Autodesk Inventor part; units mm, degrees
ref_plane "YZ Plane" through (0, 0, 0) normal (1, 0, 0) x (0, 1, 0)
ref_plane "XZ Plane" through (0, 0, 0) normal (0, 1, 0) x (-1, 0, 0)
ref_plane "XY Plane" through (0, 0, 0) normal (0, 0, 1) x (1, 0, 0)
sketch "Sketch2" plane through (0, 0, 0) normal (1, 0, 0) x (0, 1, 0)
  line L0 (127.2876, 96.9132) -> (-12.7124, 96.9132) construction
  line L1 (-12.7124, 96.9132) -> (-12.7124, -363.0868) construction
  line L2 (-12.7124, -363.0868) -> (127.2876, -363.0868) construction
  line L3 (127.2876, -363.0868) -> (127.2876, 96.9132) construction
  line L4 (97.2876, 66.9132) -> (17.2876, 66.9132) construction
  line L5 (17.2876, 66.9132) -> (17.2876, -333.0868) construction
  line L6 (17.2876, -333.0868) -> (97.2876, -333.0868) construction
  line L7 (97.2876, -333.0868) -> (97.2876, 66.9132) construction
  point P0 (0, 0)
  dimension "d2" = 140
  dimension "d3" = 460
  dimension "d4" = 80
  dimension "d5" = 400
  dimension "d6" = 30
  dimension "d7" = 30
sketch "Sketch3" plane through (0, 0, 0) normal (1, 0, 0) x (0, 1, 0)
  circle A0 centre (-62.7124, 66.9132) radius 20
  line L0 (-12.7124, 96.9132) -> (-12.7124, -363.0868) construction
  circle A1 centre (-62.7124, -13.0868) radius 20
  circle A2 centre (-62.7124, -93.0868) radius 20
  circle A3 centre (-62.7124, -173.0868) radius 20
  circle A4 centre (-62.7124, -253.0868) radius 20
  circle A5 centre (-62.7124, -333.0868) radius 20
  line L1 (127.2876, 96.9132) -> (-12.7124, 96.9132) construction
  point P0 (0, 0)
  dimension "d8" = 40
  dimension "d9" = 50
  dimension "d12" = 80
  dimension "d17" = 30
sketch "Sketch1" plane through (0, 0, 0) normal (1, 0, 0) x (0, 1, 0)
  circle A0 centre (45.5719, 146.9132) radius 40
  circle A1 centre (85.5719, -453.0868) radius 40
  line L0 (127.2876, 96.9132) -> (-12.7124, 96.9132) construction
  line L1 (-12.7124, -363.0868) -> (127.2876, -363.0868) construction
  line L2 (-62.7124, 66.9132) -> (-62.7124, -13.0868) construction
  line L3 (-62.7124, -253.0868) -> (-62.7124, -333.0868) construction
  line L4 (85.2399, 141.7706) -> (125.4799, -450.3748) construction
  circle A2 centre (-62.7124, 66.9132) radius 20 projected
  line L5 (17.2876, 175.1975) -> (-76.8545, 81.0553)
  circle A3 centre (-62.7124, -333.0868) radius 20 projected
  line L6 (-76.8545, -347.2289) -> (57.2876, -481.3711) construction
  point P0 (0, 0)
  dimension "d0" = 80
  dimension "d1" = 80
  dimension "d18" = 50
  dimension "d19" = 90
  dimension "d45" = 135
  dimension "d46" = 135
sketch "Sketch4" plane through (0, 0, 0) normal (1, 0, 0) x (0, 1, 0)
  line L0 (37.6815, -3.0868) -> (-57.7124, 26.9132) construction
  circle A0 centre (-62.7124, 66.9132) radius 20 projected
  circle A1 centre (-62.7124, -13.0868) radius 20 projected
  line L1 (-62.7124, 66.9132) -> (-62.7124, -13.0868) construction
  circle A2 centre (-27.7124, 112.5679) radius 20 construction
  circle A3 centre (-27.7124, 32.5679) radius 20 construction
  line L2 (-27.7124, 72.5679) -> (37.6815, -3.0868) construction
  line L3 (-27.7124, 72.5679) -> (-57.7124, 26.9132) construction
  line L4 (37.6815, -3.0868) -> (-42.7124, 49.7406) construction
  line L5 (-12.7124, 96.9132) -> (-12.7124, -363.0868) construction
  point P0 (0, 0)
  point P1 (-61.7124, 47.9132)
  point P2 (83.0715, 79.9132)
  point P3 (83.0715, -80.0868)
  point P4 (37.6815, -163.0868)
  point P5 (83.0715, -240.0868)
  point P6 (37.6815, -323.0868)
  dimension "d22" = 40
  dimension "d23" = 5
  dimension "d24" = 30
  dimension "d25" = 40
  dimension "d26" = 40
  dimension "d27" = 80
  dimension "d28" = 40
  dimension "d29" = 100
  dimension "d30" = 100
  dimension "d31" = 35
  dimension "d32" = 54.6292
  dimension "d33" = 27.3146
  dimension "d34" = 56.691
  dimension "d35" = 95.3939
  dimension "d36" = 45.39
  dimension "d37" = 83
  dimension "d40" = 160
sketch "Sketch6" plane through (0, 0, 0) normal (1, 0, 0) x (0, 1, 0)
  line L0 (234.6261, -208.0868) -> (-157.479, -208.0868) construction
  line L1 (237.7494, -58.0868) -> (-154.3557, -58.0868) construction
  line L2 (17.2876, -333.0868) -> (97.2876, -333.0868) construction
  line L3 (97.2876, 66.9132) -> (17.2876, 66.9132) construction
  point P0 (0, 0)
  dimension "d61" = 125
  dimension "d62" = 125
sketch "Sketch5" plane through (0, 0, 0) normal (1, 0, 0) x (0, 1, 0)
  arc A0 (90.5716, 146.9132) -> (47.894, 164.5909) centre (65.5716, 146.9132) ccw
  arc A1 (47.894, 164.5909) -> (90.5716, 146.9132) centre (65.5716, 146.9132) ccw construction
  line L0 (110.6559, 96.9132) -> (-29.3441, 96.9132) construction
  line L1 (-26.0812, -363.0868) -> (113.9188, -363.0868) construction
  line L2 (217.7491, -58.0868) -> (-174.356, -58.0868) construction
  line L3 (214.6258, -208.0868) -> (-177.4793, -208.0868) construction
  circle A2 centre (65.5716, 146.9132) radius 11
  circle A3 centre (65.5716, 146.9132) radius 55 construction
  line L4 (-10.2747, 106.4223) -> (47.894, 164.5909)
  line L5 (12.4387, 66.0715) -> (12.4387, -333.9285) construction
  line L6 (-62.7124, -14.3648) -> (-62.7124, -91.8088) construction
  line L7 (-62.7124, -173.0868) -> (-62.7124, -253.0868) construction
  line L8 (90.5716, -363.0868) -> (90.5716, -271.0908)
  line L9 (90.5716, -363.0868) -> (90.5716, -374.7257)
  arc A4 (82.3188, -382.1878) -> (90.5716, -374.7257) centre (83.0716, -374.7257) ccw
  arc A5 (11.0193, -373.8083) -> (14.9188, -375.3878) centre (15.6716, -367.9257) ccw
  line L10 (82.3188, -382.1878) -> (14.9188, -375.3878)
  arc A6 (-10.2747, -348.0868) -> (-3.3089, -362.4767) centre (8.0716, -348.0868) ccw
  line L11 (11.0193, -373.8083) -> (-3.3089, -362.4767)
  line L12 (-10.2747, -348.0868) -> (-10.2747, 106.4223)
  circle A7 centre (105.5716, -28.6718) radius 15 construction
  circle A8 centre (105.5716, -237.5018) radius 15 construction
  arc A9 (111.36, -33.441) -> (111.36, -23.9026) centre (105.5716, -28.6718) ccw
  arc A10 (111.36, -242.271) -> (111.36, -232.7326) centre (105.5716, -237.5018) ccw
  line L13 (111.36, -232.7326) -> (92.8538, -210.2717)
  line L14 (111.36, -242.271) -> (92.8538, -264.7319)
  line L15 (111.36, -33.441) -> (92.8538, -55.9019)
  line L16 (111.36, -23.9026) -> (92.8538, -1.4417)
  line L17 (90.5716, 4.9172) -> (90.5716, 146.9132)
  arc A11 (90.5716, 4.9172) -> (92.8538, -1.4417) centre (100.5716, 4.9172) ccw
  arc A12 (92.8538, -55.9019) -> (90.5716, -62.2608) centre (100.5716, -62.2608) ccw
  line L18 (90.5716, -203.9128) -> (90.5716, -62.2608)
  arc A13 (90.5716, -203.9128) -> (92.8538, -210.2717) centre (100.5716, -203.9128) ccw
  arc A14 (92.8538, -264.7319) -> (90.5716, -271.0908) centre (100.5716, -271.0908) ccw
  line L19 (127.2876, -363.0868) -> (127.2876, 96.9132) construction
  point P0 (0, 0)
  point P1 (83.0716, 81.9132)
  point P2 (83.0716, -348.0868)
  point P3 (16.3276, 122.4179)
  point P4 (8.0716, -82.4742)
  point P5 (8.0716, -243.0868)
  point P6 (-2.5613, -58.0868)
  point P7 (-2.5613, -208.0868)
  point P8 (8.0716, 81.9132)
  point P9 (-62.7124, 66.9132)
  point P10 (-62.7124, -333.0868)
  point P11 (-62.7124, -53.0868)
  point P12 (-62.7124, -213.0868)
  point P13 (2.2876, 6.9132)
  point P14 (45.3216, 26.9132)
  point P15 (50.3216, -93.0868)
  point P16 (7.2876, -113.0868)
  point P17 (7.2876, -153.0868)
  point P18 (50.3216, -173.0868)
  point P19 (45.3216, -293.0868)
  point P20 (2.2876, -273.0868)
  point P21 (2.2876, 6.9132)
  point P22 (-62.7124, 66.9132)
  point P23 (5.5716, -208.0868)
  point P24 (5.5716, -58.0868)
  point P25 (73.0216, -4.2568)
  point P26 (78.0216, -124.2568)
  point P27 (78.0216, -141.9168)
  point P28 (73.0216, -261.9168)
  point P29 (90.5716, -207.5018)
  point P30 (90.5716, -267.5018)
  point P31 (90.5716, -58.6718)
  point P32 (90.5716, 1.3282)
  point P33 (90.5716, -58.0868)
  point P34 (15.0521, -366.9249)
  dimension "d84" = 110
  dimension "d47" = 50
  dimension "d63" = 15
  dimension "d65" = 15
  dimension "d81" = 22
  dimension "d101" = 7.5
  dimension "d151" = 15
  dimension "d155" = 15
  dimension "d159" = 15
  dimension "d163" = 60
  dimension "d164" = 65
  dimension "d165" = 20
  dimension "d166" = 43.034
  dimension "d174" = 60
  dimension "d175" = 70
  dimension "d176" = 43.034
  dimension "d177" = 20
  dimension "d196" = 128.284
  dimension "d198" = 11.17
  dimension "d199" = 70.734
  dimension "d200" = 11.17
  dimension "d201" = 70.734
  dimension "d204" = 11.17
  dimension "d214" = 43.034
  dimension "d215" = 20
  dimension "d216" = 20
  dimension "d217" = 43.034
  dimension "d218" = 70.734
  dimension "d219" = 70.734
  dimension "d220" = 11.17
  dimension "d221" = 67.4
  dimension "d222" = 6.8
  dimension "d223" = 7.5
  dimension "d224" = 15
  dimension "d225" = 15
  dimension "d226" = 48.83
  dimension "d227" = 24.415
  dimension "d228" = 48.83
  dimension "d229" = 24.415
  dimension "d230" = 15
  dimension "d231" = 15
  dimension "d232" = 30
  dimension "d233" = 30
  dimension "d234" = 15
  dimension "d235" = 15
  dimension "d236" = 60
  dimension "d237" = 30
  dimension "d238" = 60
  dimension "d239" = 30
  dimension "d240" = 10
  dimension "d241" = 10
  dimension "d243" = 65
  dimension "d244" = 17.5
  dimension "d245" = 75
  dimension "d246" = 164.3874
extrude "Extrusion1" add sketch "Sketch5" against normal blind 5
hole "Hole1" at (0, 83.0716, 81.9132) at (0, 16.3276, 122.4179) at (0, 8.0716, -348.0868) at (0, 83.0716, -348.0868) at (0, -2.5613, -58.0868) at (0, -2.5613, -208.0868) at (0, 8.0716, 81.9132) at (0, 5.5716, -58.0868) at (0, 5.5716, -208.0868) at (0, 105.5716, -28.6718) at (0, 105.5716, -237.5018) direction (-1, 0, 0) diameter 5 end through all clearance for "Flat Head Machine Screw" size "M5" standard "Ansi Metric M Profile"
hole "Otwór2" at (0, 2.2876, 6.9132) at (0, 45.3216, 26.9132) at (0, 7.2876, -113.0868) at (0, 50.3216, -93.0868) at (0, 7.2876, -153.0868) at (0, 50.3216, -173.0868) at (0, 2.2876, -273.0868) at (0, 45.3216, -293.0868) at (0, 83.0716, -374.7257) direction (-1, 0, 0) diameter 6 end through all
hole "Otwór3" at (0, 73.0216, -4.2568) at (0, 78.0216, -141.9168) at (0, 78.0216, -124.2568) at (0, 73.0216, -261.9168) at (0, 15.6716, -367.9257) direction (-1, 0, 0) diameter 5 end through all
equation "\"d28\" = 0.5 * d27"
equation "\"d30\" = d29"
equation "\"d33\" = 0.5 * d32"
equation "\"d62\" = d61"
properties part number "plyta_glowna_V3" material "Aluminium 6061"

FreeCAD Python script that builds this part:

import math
import FreeCAD as App
import Part
import Sketcher
Q = App.Units.Quantity

doc = App.newDocument("Part")
body = doc.addObject("PartDesign::Body", "Body")

sketch1 = doc.addObject("Sketcher::SketchObject", "Sketch")
body.addObject(sketch1)
sketch1.AttachmentSupport = (doc.YZ_Plane, [""])
sketch1.MapMode = "FlatFace"
sketch1.addGeometry([
    Part.LineSegment(App.Vector(90.6, 4.9, 0), App.Vector(90.6, 146.9, 0)),
    Part.ArcOfCircle(Part.Circle(App.Vector(65.6, 146.9, 0), App.Vector(0, 0, 1), 25), math.radians(0), math.radians(135)),
    Part.LineSegment(App.Vector(47.9, 164.6, 0), App.Vector(-10.3, 106.4, 0)),
    Part.LineSegment(App.Vector(-10.3, 106.4, 0), App.Vector(-10.3, -348.1, 0)),
    Part.ArcOfCircle(Part.Circle(App.Vector(8.1, -348.1, 0), App.Vector(0, 0, 1), 18.3), math.radians(180), math.radians(232)),
    Part.LineSegment(App.Vector(-3.3, -362.5, 0), App.Vector(11, -373.8, 0)),
    Part.ArcOfCircle(Part.Circle(App.Vector(15.7, -367.9, 0), App.Vector(0, 0, 1), 7.5), math.radians(-128), math.radians(-96)),
    Part.LineSegment(App.Vector(14.9, -375.4, 0), App.Vector(82.3, -382.2, 0)),
    Part.ArcOfCircle(Part.Circle(App.Vector(83.1, -374.7, 0), App.Vector(0, 0, 1), 7.5), math.radians(-96), math.radians(0)),
    Part.LineSegment(App.Vector(90.6, -374.7, 0), App.Vector(90.6, -271.1, 0)),
    Part.ArcOfCircle(Part.Circle(App.Vector(100.6, -271.1, 0), App.Vector(0, 0, 1), 10), math.radians(141), math.radians(180)),
    Part.LineSegment(App.Vector(92.9, -264.7, 0), App.Vector(111.4, -242.3, 0)),
    Part.ArcOfCircle(Part.Circle(App.Vector(105.6, -237.5, 0), App.Vector(0, 0, 1), 7.5), math.radians(-39), math.radians(39)),
    Part.LineSegment(App.Vector(111.4, -232.7, 0), App.Vector(92.9, -210.3, 0)),
    Part.ArcOfCircle(Part.Circle(App.Vector(100.6, -203.9, 0), App.Vector(0, 0, 1), 10), math.radians(180), math.radians(219)),
    Part.LineSegment(App.Vector(90.6, -203.9, 0), App.Vector(90.6, -62.3, 0)),
    Part.ArcOfCircle(Part.Circle(App.Vector(100.6, -62.3, 0), App.Vector(0, 0, 1), 10), math.radians(141), math.radians(180)),
    Part.LineSegment(App.Vector(92.9, -55.9, 0), App.Vector(111.4, -33.4, 0)),
    Part.ArcOfCircle(Part.Circle(App.Vector(105.6, -28.7, 0), App.Vector(0, 0, 1), 7.5), math.radians(-39), math.radians(39)),
    Part.LineSegment(App.Vector(111.4, -23.9, 0), App.Vector(92.9, -1.4, 0)),
    Part.ArcOfCircle(Part.Circle(App.Vector(100.6, 4.9, 0), App.Vector(0, 0, 1), 10), math.radians(180), math.radians(219)),
    Part.Circle(App.Vector(65.6, 146.9, 0), App.Vector(0, 0, 1), 11),
], False)
sketch1.addConstraint([
    Sketcher.Constraint("Tangent", 0, 2, 1, 1),
    Sketcher.Constraint("Tangent", 1, 2, 2, 1),
    Sketcher.Constraint("Coincident", 2, 2, 3, 1),
    Sketcher.Constraint("Tangent", 3, 2, 4, 1),
    Sketcher.Constraint("Tangent", 4, 2, 5, 1),
    Sketcher.Constraint("Tangent", 5, 2, 6, 1),
    Sketcher.Constraint("Tangent", 6, 2, 7, 1),
    Sketcher.Constraint("Tangent", 7, 2, 8, 1),
    Sketcher.Constraint("Tangent", 8, 2, 9, 1),
    Sketcher.Constraint("Tangent", 9, 2, 10, 2),
    Sketcher.Constraint("Tangent", 10, 1, 11, 1),
    Sketcher.Constraint("Tangent", 11, 2, 12, 1),
    Sketcher.Constraint("Tangent", 12, 2, 13, 1),
    Sketcher.Constraint("Tangent", 13, 2, 14, 2),
    Sketcher.Constraint("Tangent", 14, 1, 15, 1),
    Sketcher.Constraint("Tangent", 15, 2, 16, 2),
    Sketcher.Constraint("Tangent", 16, 1, 17, 1),
    Sketcher.Constraint("Tangent", 17, 2, 18, 1),
    Sketcher.Constraint("Tangent", 18, 2, 19, 1),
    Sketcher.Constraint("Tangent", 19, 2, 20, 2),
    Sketcher.Constraint("Tangent", 20, 1, 0, 1),
    Sketcher.Constraint("Vertical", 0),
    Sketcher.Constraint("Vertical", 3),
    Sketcher.Constraint("Vertical", 9),
    Sketcher.Constraint("Vertical", 15),
    Sketcher.Constraint("Coincident", 21, 3, 1, 3),
    Sketcher.Constraint("Equal", 6, 8),
    Sketcher.Constraint("Equal", 8, 12),
    Sketcher.Constraint("Equal", 10, 14),
    Sketcher.Constraint("Equal", 14, 16),
    Sketcher.Constraint("Equal", 12, 18),
    Sketcher.Constraint("Equal", 16, 20),
    Sketcher.Constraint("Parallel", 11, 17),
    Sketcher.Constraint("Parallel", 13, 19),
    Sketcher.Constraint("Vertical", 10, 3, 14, 3),
    Sketcher.Constraint("Vertical", 12, 3, 18, 3),
    Sketcher.Constraint("Vertical", 16, 3, 20, 3),
    Sketcher.Constraint("Vertical", 11, 2, 12, 2),
    Sketcher.Constraint("Diameter", 21, 22.0),
    Sketcher.Constraint("Radius", 1, 25.0),
    Sketcher.Constraint("Radius", 10, 10.0),
    Sketcher.Constraint("Radius", 6, 7.5),
    Sketcher.Constraint("DistanceX", 4, 3, 8, 3, 75.0),
    Sketcher.Constraint("DistanceX", 0, 2, 18, 3, 15.0),
    Sketcher.Constraint("DistanceX", 6, 3, 8, 3, 67.4),
    Sketcher.Constraint("DistanceY", 8, 3, 6, 3, 6.8),
    Sketcher.Constraint("Angle", 2, Q("-135 deg")),
    Sketcher.Constraint("DistanceY", 4, 3, 1, 3, 495.0),
    Sketcher.Constraint("Angle", 5, Q("-38.339 deg")),
    Sketcher.Constraint("Radius", 4, 18.3463),
    Sketcher.Constraint("DistanceY", 0, 1, 0, 2, 141.996),
    Sketcher.Constraint("DistanceY", 9, 1, 9, 2, 103.635),
    Sketcher.Constraint("DistanceY", 15, 1, 15, 2, 141.652),
    Sketcher.Constraint("DistanceX", -1, 1, 11, 2, 111.36),
    Sketcher.Constraint("DistanceY", -1, 1, 1, 2, 164.591),
])
pad1 = doc.addObject("PartDesign::Pad", "Pad")
body.addObject(pad1)
pad1.Profile = sketch1
pad1.Length = 5
pad1.Reversed = True

sketch2 = doc.addObject("Sketcher::SketchObject", "Sketch001")
body.addObject(sketch2)
sketch2.AttachmentSupport = (doc.YZ_Plane, [""])
sketch2.MapMode = "FlatFace"
sketch2.addGeometry([
    Part.Circle(App.Vector(83.1, 81.9, 0), App.Vector(0, 0, 1), 2.5),
    Part.Circle(App.Vector(16.3, 122.4, 0), App.Vector(0, 0, 1), 2.5),
    Part.Circle(App.Vector(8.1, -348.1, 0), App.Vector(0, 0, 1), 2.5),
    Part.Circle(App.Vector(83.1, -348.1, 0), App.Vector(0, 0, 1), 2.5),
    Part.Circle(App.Vector(-2.6, -58.1, 0), App.Vector(0, 0, 1), 2.5),
    Part.Circle(App.Vector(-2.6, -208.1, 0), App.Vector(0, 0, 1), 2.5),
    Part.Circle(App.Vector(8.1, 81.9, 0), App.Vector(0, 0, 1), 2.5),
    Part.Circle(App.Vector(5.6, -58.1, 0), App.Vector(0, 0, 1), 2.5),
    Part.Circle(App.Vector(5.6, -208.1, 0), App.Vector(0, 0, 1), 2.5),
    Part.Circle(App.Vector(105.6, -28.7, 0), App.Vector(0, 0, 1), 2.5),
    Part.Circle(App.Vector(105.6, -237.5, 0), App.Vector(0, 0, 1), 2.5),
], False)
sketch2.addConstraint([
    Sketcher.Constraint("Equal", 0, 1),
    Sketcher.Constraint("Equal", 1, 2),
    Sketcher.Constraint("Equal", 2, 3),
    Sketcher.Constraint("Equal", 3, 4),
    Sketcher.Constraint("Equal", 4, 5),
    Sketcher.Constraint("Equal", 5, 6),
    Sketcher.Constraint("Equal", 6, 7),
    Sketcher.Constraint("Equal", 7, 8),
    Sketcher.Constraint("Equal", 8, 9),
    Sketcher.Constraint("Equal", 9, 10),
    Sketcher.Constraint("Horizontal", 2, 3, 3, 3),
    Sketcher.Constraint("Horizontal", 0, 3, 6, 3),
    Sketcher.Constraint("Horizontal", 4, 3, 7, 3),
    Sketcher.Constraint("Horizontal", 5, 3, 8, 3),
    Sketcher.Constraint("Vertical", 0, 3, 3, 3),
    Sketcher.Constraint("Vertical", 4, 3, 5, 3),
    Sketcher.Constraint("Vertical", 2, 3, 6, 3),
    Sketcher.Constraint("Vertical", 7, 3, 8, 3),
    Sketcher.Constraint("Vertical", 9, 3, 10, 3),
    Sketcher.Constraint("Diameter", 0, 5.0),
    Sketcher.Constraint("DistanceX", 2, 3, 0, 3, 75.0),
    Sketcher.Constraint("DistanceY", 2, 3, 0, 3, 430.0),
    Sketcher.Constraint("DistanceY", 4, 3, 0, 3, 140.0),
    Sketcher.Constraint("DistanceY", 2, 3, 5, 3, 140.0),
    Sketcher.Constraint("DistanceX", 7, 3, 9, 3, 100.0),
    Sketcher.Constraint("DistanceX", 7, 3, 6, 3, 2.5),
    Sketcher.Constraint("DistanceY", -1, 1, 1, 3, 122.418),
    Sketcher.Constraint("DistanceX", 1, 3, 0, 3, 66.744),
    Sketcher.Constraint("DistanceX", 4, 3, 0, 3, 85.633),
    Sketcher.Constraint("DistanceY", 7, 3, 9, 3, 29.415),
    Sketcher.Constraint("DistanceY", 10, 3, 8, 3, 29.415),
    Sketcher.Constraint("DistanceX", -1, 1, 0, 3, 83.0716),
    Sketcher.Constraint("DistanceY", -1, 1, 0, 3, 81.9132),
])
doc.recompute()
hole = doc.addObject("PartDesign::Hole", "Hole")
body.addObject(hole)
hole.Profile = sketch2
hole.ThreadType = "None"
hole.Diameter = 5
hole.DepthType = "ThroughAll"

sketch3 = doc.addObject("Sketcher::SketchObject", "Sketch002")
body.addObject(sketch3)
sketch3.AttachmentSupport = (doc.YZ_Plane, [""])
sketch3.MapMode = "FlatFace"
sketch3.addGeometry([
    Part.Circle(App.Vector(2.3, 6.9, 0), App.Vector(0, 0, 1), 3),
    Part.Circle(App.Vector(45.3, 26.9, 0), App.Vector(0, 0, 1), 3),
    Part.Circle(App.Vector(7.3, -113.1, 0), App.Vector(0, 0, 1), 3),
    Part.Circle(App.Vector(50.3, -93.1, 0), App.Vector(0, 0, 1), 3),
    Part.Circle(App.Vector(7.3, -153.1, 0), App.Vector(0, 0, 1), 3),
    Part.Circle(App.Vector(50.3, -173.1, 0), App.Vector(0, 0, 1), 3),
    Part.Circle(App.Vector(2.3, -273.1, 0), App.Vector(0, 0, 1), 3),
    Part.Circle(App.Vector(45.3, -293.1, 0), App.Vector(0, 0, 1), 3),
    Part.Circle(App.Vector(83.1, -374.7, 0), App.Vector(0, 0, 1), 3),
], False)
sketch3.addConstraint([
    Sketcher.Constraint("Equal", 0, 1),
    Sketcher.Constraint("Equal", 1, 2),
    Sketcher.Constraint("Equal", 2, 3),
    Sketcher.Constraint("Equal", 3, 4),
    Sketcher.Constraint("Equal", 4, 5),
    Sketcher.Constraint("Equal", 5, 6),
    Sketcher.Constraint("Equal", 6, 7),
    Sketcher.Constraint("Equal", 7, 8),
    Sketcher.Constraint("Vertical", 2, 3, 4, 3),
    Sketcher.Constraint("Vertical", 3, 3, 5, 3),
    Sketcher.Constraint("Vertical", 0, 3, 6, 3),
    Sketcher.Constraint("Vertical", 1, 3, 7, 3),
    Sketcher.Constraint("Diameter", 0, 6.0),
    Sketcher.Constraint("DistanceY", 0, 3, 1, 3, 20.0),
    Sketcher.Constraint("DistanceX", 0, 3, 2, 3, 5.0),
    Sketcher.Constraint("DistanceY", 2, 3, 0, 3, 120.0),
    Sketcher.Constraint("DistanceY", 2, 3, 3, 3, 20.0),
    Sketcher.Constraint("DistanceX", 1, 3, 3, 3, 5.0),
    Sketcher.Constraint("DistanceY", 4, 3, 2, 3, 40.0),
    Sketcher.Constraint("DistanceY", 5, 3, 4, 3, 20.0),
    Sketcher.Constraint("DistanceY", 6, 3, 5, 3, 100.0),
    Sketcher.Constraint("DistanceY", 7, 3, 6, 3, 20.0),
    Sketcher.Constraint("DistanceX", 7, 3, 8, 3, 37.75),
    Sketcher.Constraint("DistanceX", 0, 3, 1, 3, 43.034),
    Sketcher.Constraint("DistanceY", 8, 3, 7, 3, 81.639),
    Sketcher.Constraint("DistanceX", -1, 1, 0, 3, 2.2876),
    Sketcher.Constraint("DistanceY", -1, 1, 0, 3, 6.9132),
])
doc.recompute()
hole2 = doc.addObject("PartDesign::Hole", "Hole001")
body.addObject(hole2)
hole2.Profile = sketch3
hole2.ThreadType = "None"
hole2.Diameter = 6
hole2.DepthType = "ThroughAll"

sketch4 = doc.addObject("Sketcher::SketchObject", "Sketch003")
body.addObject(sketch4)
sketch4.AttachmentSupport = (doc.YZ_Plane, [""])
sketch4.MapMode = "FlatFace"
sketch4.addGeometry([
    Part.Circle(App.Vector(73, -4.3, 0), App.Vector(0, 0, 1), 2.5),
    Part.Circle(App.Vector(78, -141.9, 0), App.Vector(0, 0, 1), 2.5),
    Part.Circle(App.Vector(78, -124.3, 0), App.Vector(0, 0, 1), 2.5),
    Part.Circle(App.Vector(73, -261.9, 0), App.Vector(0, 0, 1), 2.5),
    Part.Circle(App.Vector(15.7, -367.9, 0), App.Vector(0, 0, 1), 2.5),
], False)
sketch4.addConstraint([
    Sketcher.Constraint("Equal", 0, 1),
    Sketcher.Constraint("Equal", 1, 2),
    Sketcher.Constraint("Equal", 2, 3),
    Sketcher.Constraint("Equal", 3, 4),
    Sketcher.Constraint("Vertical", 1, 3, 2, 3),
    Sketcher.Constraint("Vertical", 0, 3, 3, 3),
    Sketcher.Constraint("Diameter", 0, 5.0),
    Sketcher.Constraint("DistanceX", 0, 3, 1, 3, 5.0),
    Sketcher.Constraint("DistanceY", 2, 3, 0, 3, 120.0),
    Sketcher.Constraint("DistanceY", 3, 3, 1, 3, 120.0),
    Sketcher.Constraint("DistanceY", 1, 3, 0, 3, 137.66),
    Sketcher.Constraint("DistanceX", 4, 3, 3, 3, 57.35),
    Sketcher.Constraint("DistanceY", 4, 3, 3, 3, 106.009),
    Sketcher.Constraint("DistanceX", -1, 1, 0, 3, 73.0216),
    Sketcher.Constraint("DistanceY", 0, 3, -1, 1, 4.2568),
])
doc.recompute()
hole3 = doc.addObject("PartDesign::Hole", "Hole002")
body.addObject(hole3)
hole3.Profile = sketch4
hole3.ThreadType = "None"
hole3.Diameter = 5
hole3.DepthType = "ThroughAll"

doc.recompute()
